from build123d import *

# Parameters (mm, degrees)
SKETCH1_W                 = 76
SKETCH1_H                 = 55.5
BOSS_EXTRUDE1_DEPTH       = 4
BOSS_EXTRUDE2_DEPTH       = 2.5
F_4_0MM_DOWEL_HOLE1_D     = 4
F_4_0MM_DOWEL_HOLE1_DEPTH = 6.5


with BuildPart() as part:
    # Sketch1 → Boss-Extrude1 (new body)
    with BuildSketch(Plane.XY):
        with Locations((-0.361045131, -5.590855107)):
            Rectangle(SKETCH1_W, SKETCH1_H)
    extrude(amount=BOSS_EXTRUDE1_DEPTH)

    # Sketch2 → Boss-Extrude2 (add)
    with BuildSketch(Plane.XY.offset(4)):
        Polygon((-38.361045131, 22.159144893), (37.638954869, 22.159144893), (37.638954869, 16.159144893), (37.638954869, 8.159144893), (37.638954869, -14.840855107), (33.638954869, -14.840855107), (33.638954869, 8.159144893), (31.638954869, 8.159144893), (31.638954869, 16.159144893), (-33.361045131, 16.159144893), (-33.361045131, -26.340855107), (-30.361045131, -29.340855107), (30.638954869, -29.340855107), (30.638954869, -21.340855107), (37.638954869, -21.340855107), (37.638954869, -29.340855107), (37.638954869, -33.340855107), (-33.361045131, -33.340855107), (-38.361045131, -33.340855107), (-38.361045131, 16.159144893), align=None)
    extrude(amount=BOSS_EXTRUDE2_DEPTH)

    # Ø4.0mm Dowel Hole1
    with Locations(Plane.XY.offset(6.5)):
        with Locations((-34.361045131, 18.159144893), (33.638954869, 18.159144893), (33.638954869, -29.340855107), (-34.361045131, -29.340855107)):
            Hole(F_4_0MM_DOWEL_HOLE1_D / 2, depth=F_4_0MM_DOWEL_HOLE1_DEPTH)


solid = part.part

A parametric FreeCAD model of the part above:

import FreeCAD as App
import Part
import Sketcher
from FreeCAD import Vector
Q = App.Units.Quantity

doc = App.newDocument("Part")
body = doc.addObject("PartDesign::Body", "Body")

# Sketch on XY plane
sketch1 = doc.addObject("Sketcher::SketchObject", "Sketch")
body.addObject(sketch1)
sketch1.AttachmentSupport = (doc.XY_Plane, [""])
sketch1.MapMode = "FlatFace"
sketch1.addGeometry([
    Part.LineSegment(Vector(-38, 22, 0), Vector(-38, -33, 0)),
    Part.LineSegment(Vector(-38, -33, 0), Vector(38, -33, 0)),
    Part.LineSegment(Vector(38, -33, 0), Vector(38, 22, 0)),
    Part.LineSegment(Vector(38, 22, 0), Vector(-38, 22, 0)),
], False)
sketch1.addConstraint([
    Sketcher.Constraint("Coincident", 0, 2, 1, 1),
    Sketcher.Constraint("Coincident", 1, 2, 2, 1),
    Sketcher.Constraint("Coincident", 2, 2, 3, 1),
    Sketcher.Constraint("Coincident", 3, 2, 0, 1),
    Sketcher.Constraint("Vertical", 0),
    Sketcher.Constraint("Horizontal", 1),
    Sketcher.Constraint("Vertical", 2),
    Sketcher.Constraint("Horizontal", 3),
    Sketcher.Constraint("DistanceX", 1, 1, 1, 2, 76.0),
    Sketcher.Constraint("DistanceY", 0, 2, 0, 1, 55.5),
    Sketcher.Constraint("DistanceX", 0, 2, -1, 1, 38.361045),
    Sketcher.Constraint("DistanceY", 0, 2, -1, 1, 33.340855),
])
pad1 = doc.addObject("PartDesign::Pad", "Pad")
body.addObject(pad1)
pad1.Profile = sketch1
pad1.Length = 4

# Sketch on XY plane
sketch2 = doc.addObject("Sketcher::SketchObject", "Sketch001")
body.addObject(sketch2)
sketch2.AttachmentSupport = (doc.XY_Plane, [""])
sketch2.MapMode = "FlatFace"
sketch2.AttachmentOffset = App.Placement(Vector(0, 0, 4), App.Rotation())
sketch2.addGeometry([
    Part.LineSegment(Vector(37.6, 22.2, 0), Vector(-38.4, 22.2, 0)),  # 0
    Part.LineSegment(Vector(-38.4, 22.2, 0), Vector(-38.4, -33.3, 0)),  # 1
    Part.LineSegment(Vector(-38.4, -33.3, 0), Vector(37.6, -33.3, 0)),  # 2
    Part.LineSegment(Vector(37.6, -33.3, 0), Vector(37.6, -21.3, 0)),  # 3
    Part.LineSegment(Vector(37.6, -21.3, 0), Vector(30.6, -21.3, 0)),  # 4
    Part.LineSegment(Vector(30.6, -21.3, 0), Vector(30.6, -29.3, 0)),  # 5
    Part.LineSegment(Vector(30.6, -29.3, 0), Vector(-30.4, -29.3, 0)),  # 6
    Part.LineSegment(Vector(-30.4, -29.3, 0), Vector(-33.4, -26.3, 0)),  # 7
    Part.LineSegment(Vector(-33.4, -26.3, 0), Vector(-33.4, 16.2, 0)),  # 8
    Part.LineSegment(Vector(-33.4, 16.2, 0), Vector(31.6, 16.2, 0)),  # 9
    Part.LineSegment(Vector(31.6, 16.2, 0), Vector(31.6, 8.2, 0)),  # 10
    Part.LineSegment(Vector(31.6, 8.2, 0), Vector(33.6, 8.2, 0)),  # 11
    Part.LineSegment(Vector(33.6, 8.2, 0), Vector(33.6, -14.8, 0)),  # 12
    Part.LineSegment(Vector(33.6, -14.8, 0), Vector(37.6, -14.8, 0)),  # 13
    Part.LineSegment(Vector(37.6, -14.8, 0), Vector(37.6, 22.2, 0)),  # 14
], False)
sketch2.addConstraint([
    Sketcher.Constraint("Coincident", 0, 2, 1, 1),
    Sketcher.Constraint("Coincident", 1, 2, 2, 1),
    Sketcher.Constraint("Coincident", 2, 2, 3, 1),
    Sketcher.Constraint("Coincident", 3, 2, 4, 1),
    Sketcher.Constraint("Coincident", 4, 2, 5, 1),
    Sketcher.Constraint("Coincident", 5, 2, 6, 1),
    Sketcher.Constraint("Coincident", 6, 2, 7, 1),
    Sketcher.Constraint("Coincident", 7, 2, 8, 1),
    Sketcher.Constraint("Coincident", 8, 2, 9, 1),
    Sketcher.Constraint("Coincident", 9, 2, 10, 1),
    Sketcher.Constraint("Coincident", 10, 2, 11, 1),
    Sketcher.Constraint("Coincident", 11, 2, 12, 1),
    Sketcher.Constraint("Coincident", 12, 2, 13, 1),
    Sketcher.Constraint("Coincident", 13, 2, 14, 1),
    Sketcher.Constraint("Coincident", 14, 2, 0, 1),
    Sketcher.Constraint("Horizontal", 0),
    Sketcher.Constraint("Vertical", 1),
    Sketcher.Constraint("Horizontal", 2),
    Sketcher.Constraint("Vertical", 3),
    Sketcher.Constraint("Horizontal", 4),
    Sketcher.Constraint("Vertical", 5),
    Sketcher.Constraint("Horizontal", 6),
    Sketcher.Constraint("Vertical", 8),
    Sketcher.Constraint("Horizontal", 9),
    Sketcher.Constraint("Vertical", 10),
    Sketcher.Constraint("Horizontal", 11),
    Sketcher.Constraint("Vertical", 12),
    Sketcher.Constraint("Horizontal", 13),
    Sketcher.Constraint("Vertical", 14),
    Sketcher.Constraint("Vertical", 3, 2, 13, 2),
    Sketcher.Constraint("Equal", 5, 10),
    Sketcher.Constraint("DistanceX", 0, 2, 0, 1, 76.0),
    Sketcher.Constraint("DistanceX", 4, 2, 4, 1, 7.0),
    Sketcher.Constraint("DistanceX", 6, 2, 6, 1, 61.0),
    Sketcher.Constraint("DistanceX", 9, 1, 9, 2, 65.0),
    Sketcher.Constraint("DistanceX", 11, 1, 11, 2, 2.0),
    Sketcher.Constraint("DistanceX", 13, 1, 13, 2, 4.0),
    Sketcher.Constraint("DistanceY", 3, 1, 3, 2, 12.0),
    Sketcher.Constraint("DistanceY", 5, 2, 5, 1, 8.0),
    Sketcher.Constraint("DistanceY", 12, 2, 12, 1, 23.0),
    Sketcher.Constraint("DistanceY", 14, 1, 14, 2, 37.0),
    Sketcher.Constraint("Angle", 7, Q("135 deg")),
    Sketcher.Constraint("DistanceY", 1, 2, 1, 1, 55.5),
    Sketcher.Constraint("DistanceX", 0, 2, -1, 1, 38.361045),
    Sketcher.Constraint("DistanceY", -1, 1, 0, 2, 22.159145),
])
pad2 = doc.addObject("PartDesign::Pad", "Pad001")
body.addObject(pad2)
pad2.Profile = sketch2
pad2.Length = 2.5

# Sketch on XY plane
sketch3 = doc.addObject("Sketcher::SketchObject", "Sketch002")
body.addObject(sketch3)
sketch3.AttachmentSupport = (doc.XY_Plane, [""])
sketch3.MapMode = "FlatFace"
sketch3.AttachmentOffset = App.Placement(Vector(0, 0, 6.5), App.Rotation())
sketch3.addGeometry([
    Part.Circle(Vector(-34.4, 18.2, 0), Vector(0, 0, 1), 2),
    Part.Circle(Vector(33.6, 18.2, 0), Vector(0, 0, 1), 2),
    Part.Circle(Vector(33.6, -29.3, 0), Vector(0, 0, 1), 2),
    Part.Circle(Vector(-34.4, -29.3, 0), Vector(0, 0, 1), 2),
], False)
sketch3.addConstraint([
    Sketcher.Constraint("Equal", 0, 1),
    Sketcher.Constraint("Equal", 1, 2),
    Sketcher.Constraint("Equal", 2, 3),
    Sketcher.Constraint("Horizontal", 0, 3, 1, 3),
    Sketcher.Constraint("Horizontal", 2, 3, 3, 3),
    Sketcher.Constraint("Vertical", 1, 3, 2, 3),
    Sketcher.Constraint("Vertical", 0, 3, 3, 3),
    Sketcher.Constraint("Diameter", 0, 4.0),
    Sketcher.Constraint("DistanceX", 0, 3, 1, 3, 68.0),
    Sketcher.Constraint("DistanceY", 2, 3, 1, 3, 47.5),
    Sketcher.Constraint("DistanceX", 0, 3, -1, 1, 34.361045),
    Sketcher.Constraint("DistanceY", -1, 1, 0, 3, 18.159145),
])
doc.recompute()
hole = doc.addObject("PartDesign::Hole", "Hole")
body.addObject(hole)
hole.Profile = sketch3
hole.ThreadType = "None"
hole.Diameter = 4
hole.DepthType = "Dimension"
hole.Depth = 6.5
hole.DrillPoint = "Flat"

doc.recompute()
